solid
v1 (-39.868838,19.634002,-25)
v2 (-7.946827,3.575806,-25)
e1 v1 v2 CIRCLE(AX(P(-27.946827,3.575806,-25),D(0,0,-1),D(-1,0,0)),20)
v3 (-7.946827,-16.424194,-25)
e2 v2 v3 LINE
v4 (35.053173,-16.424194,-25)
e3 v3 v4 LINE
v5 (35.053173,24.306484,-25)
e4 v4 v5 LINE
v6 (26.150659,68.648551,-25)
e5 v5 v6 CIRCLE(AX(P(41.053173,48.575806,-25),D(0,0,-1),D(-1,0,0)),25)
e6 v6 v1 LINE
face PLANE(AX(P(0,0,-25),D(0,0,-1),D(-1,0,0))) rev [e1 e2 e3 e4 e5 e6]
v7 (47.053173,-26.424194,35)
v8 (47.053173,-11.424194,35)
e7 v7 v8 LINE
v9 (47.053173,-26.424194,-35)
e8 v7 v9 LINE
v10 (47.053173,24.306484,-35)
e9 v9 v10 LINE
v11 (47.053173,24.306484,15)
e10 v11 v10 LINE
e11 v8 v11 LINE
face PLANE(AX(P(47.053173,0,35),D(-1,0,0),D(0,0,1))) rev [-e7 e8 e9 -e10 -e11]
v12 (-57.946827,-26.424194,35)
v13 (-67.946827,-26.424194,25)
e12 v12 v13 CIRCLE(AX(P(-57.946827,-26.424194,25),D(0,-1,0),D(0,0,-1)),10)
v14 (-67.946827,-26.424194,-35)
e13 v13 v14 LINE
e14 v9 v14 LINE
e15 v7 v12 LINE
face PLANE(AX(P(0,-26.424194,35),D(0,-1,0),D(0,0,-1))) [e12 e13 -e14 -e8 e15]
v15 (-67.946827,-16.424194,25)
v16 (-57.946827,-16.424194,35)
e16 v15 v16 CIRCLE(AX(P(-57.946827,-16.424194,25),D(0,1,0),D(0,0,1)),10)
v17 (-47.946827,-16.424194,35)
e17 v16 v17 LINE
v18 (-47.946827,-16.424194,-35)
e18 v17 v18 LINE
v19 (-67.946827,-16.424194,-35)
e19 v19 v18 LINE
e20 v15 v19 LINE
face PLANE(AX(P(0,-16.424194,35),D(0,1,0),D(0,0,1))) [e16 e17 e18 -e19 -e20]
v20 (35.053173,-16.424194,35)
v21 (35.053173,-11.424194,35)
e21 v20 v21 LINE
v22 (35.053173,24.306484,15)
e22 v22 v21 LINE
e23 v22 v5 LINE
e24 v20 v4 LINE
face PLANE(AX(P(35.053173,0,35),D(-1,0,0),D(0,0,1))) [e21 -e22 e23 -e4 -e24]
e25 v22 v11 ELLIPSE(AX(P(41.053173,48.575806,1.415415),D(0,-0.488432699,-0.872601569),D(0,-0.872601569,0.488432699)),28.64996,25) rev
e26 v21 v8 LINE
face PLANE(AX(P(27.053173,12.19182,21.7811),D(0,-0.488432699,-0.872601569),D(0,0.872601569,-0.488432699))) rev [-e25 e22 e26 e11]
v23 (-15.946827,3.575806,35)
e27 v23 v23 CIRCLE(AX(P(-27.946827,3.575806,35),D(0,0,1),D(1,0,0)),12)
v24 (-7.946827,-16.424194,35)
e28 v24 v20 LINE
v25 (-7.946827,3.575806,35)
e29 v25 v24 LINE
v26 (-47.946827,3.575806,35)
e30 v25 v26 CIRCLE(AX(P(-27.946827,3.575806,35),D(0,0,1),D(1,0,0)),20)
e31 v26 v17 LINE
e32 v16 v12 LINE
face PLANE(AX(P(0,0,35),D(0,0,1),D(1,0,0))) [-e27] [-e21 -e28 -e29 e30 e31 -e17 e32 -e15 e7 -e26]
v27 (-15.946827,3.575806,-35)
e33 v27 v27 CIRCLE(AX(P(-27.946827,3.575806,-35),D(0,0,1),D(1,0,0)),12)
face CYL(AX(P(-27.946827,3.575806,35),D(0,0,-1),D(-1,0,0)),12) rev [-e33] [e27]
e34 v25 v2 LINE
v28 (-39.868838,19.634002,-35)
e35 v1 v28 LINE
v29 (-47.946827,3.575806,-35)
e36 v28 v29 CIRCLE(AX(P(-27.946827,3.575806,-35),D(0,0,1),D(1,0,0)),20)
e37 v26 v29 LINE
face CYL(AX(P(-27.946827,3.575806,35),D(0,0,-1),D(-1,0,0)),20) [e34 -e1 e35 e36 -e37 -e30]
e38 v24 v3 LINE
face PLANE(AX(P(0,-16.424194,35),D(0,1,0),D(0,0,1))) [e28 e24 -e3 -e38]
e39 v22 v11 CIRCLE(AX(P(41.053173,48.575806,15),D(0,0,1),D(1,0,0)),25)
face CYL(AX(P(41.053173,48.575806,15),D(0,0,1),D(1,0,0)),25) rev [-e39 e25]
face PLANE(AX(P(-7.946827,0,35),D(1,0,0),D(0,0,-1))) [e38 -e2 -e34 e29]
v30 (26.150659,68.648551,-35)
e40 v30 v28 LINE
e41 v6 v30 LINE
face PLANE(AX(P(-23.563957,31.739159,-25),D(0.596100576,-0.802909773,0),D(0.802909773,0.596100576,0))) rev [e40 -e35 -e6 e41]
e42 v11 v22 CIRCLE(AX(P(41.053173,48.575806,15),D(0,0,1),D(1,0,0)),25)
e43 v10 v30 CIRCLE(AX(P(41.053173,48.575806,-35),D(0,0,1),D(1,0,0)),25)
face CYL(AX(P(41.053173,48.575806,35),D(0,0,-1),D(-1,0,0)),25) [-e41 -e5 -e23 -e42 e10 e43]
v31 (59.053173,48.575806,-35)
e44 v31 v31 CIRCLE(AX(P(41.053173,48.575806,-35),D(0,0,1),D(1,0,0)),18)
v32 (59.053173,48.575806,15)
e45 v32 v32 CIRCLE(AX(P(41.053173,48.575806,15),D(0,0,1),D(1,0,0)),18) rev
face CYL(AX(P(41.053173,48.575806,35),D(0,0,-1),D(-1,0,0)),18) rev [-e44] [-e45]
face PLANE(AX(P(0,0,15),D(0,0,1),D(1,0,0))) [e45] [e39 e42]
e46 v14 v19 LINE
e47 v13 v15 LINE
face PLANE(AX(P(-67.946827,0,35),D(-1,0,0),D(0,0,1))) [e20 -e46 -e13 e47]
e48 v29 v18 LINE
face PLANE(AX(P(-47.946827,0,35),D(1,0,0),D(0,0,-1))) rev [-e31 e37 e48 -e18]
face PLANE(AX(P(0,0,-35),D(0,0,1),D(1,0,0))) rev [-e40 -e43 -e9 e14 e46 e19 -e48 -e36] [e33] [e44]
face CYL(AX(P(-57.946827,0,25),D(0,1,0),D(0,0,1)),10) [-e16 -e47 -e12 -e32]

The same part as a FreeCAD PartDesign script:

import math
import FreeCAD as App
import Part
import Sketcher

V = App.Vector
Q = App.Units.Quantity


def edges_at(feature, points):
    """Names of the edges that pass closest to the given points."""
    edges = feature.Shape.Edges
    near = lambda p: min(range(len(edges)), key=lambda i: edges[i].distToShape(Part.Vertex(*p))[0])
    return sorted({f"Edge{near(p) + 1}" for p in points})

doc = App.newDocument("Part")
params = doc.addObject("Spreadsheet::Sheet", "Params")
for row, (alias, value) in enumerate([
    ("sketch1_diameter", "24 mm"),
    ("sketch1_diameter2", "36 mm"),
    ("sketch1_radius", "25 mm"),
    ("sketch1_radius2", "20 mm"),
    ("sketch1_width", "43 mm"),
    ("pad1_length", "70 mm"),
    ("sketch2_radius", "25 mm"),
    ("sketch2_radius2", "20 mm"),
    ("sketch2_width", "43 mm"),
    ("sketch2_height", "20 mm"),
    ("pad2_length", "10 mm"),
    ("fillet_radius", "10 mm"),
    ("sketch3_diameter", "36 mm"),
    ("sketch3_radius", "25 mm"),
    ("pocket1_length", "20 mm"),
    ("sketch4_height", "20 mm"),
    ("pocket2_length", "20 mm"),
], start=1):
    params.set(f"A{row}", alias)
    params.set(f"B{row}", "=" + value)
    params.setAlias(f"B{row}", alias)

body = doc.addObject("PartDesign::Body", "Body")

sketch1 = doc.addObject("Sketcher::SketchObject", "Sketch")
body.addObject(sketch1)
sketch1.AttachmentSupport = (doc.XY_Plane, [""])
sketch1.MapMode = "FlatFace"
sketch1.addGeometry(Part.LineSegment(V(47.053173, -26.424194, 0), V(47.053173, 24.306484, 0)), False)
sketch1.addGeometry(Part.ArcOfCircle(Part.Circle(V(41.053173, 48.575806, 0), V(0, 0, 1), 25), math.radians(-76.11346), math.radians(256.11346)), False)
sketch1.addGeometry(Part.LineSegment(V(35.053173, 24.306484, 0), V(35.053173, -16.424194, 0)), False)
sketch1.addGeometry(Part.LineSegment(V(35.053173, -16.424194, 0), V(-7.946827, -16.424194, 0)), False)
sketch1.addGeometry(Part.LineSegment(V(-7.946827, -16.424194, 0), V(-7.946827, 3.575806, 0)), False)
sketch1.addGeometry(Part.ArcOfCircle(Part.Circle(V(-27.946827, 3.575806, 0), V(0, 0, 1), 20), math.radians(0), math.radians(180)), False)
sketch1.addGeometry(Part.LineSegment(V(-47.946827, 3.575806, 0), V(-47.946827, -16.424194, 0)), False)
sketch1.addGeometry(Part.LineSegment(V(-47.946827, -16.424194, 0), V(-67.946827, -16.424194, 0)), False)
sketch1.addGeometry(Part.LineSegment(V(-67.946827, -16.424194, 0), V(-67.946827, -26.424194, 0)), False)
sketch1.addGeometry(Part.LineSegment(V(-67.946827, -26.424194, 0), V(47.053173, -26.424194, 0)), False)
sketch1.addGeometry(Part.Circle(V(-27.946827, 3.575806, 0), V(0, 0, 1), 12), False)
sketch1.addGeometry(Part.Circle(V(41.053173, 48.575806, 0), V(0, 0, 1), 18), False)
sketch1.addConstraint(Sketcher.Constraint("Coincident", 0, 2, 1, 1))
sketch1.addConstraint(Sketcher.Constraint("Coincident", 1, 2, 2, 1))
sketch1.addConstraint(Sketcher.Constraint("Coincident", 2, 2, 3, 1))
sketch1.addConstraint(Sketcher.Constraint("Coincident", 3, 2, 4, 1))
sketch1.addConstraint(Sketcher.Constraint("Tangent", 4, 2, 5, 1))
sketch1.addConstraint(Sketcher.Constraint("Tangent", 5, 2, 6, 1))
sketch1.addConstraint(Sketcher.Constraint("Coincident", 6, 2, 7, 1))
sketch1.addConstraint(Sketcher.Constraint("Coincident", 7, 2, 8, 1))
sketch1.addConstraint(Sketcher.Constraint("Coincident", 8, 2, 9, 1))
sketch1.addConstraint(Sketcher.Constraint("Coincident", 9, 2, 0, 1))
sketch1.addConstraint(Sketcher.Constraint("Vertical", 0))
sketch1.addConstraint(Sketcher.Constraint("Vertical", 2))
sketch1.addConstraint(Sketcher.Constraint("Horizontal", 3))
sketch1.addConstraint(Sketcher.Constraint("Vertical", 4))
sketch1.addConstraint(Sketcher.Constraint("Vertical", 6))
sketch1.addConstraint(Sketcher.Constraint("Horizontal", 7))
sketch1.addConstraint(Sketcher.Constraint("Vertical", 8))
sketch1.addConstraint(Sketcher.Constraint("Horizontal", 9))
sketch1.addConstraint(Sketcher.Constraint("Coincident", 10, 3, 5, 3))
sketch1.addConstraint(Sketcher.Constraint("Coincident", 11, 3, 1, 3))
sketch1.addConstraint(Sketcher.Constraint("Horizontal", 0, 2, 1, 2))
sketch1.addConstraint(Sketcher.Constraint("Horizontal", 3, 2, 6, 2))
sketch1.addConstraint(Sketcher.Constraint("Equal", 7, 4))
sketch1.addConstraint(Sketcher.Constraint("Diameter", 10, Q("24 mm")))
sketch1.addConstraint(Sketcher.Constraint("Diameter", 11, Q("36 mm")))
sketch1.addConstraint(Sketcher.Constraint("Radius", 1, Q("25 mm")))
sketch1.addConstraint(Sketcher.Constraint("Radius", 5, Q("20 mm")))
sketch1.addConstraint(Sketcher.Constraint("DistanceX", 3, 2, 3, 1, Q("43 mm")))
sketch1.addConstraint(Sketcher.Constraint("DistanceX", 7, 2, 7, 1, Q("20 mm")))
sketch1.addConstraint(Sketcher.Constraint("DistanceX", 9, 1, 9, 2, Q("115 mm")))
sketch1.addConstraint(Sketcher.Constraint("DistanceY", 8, 2, 8, 1, Q("10 mm")))
sketch1.addConstraint(Sketcher.Constraint("DistanceY", 5, 3, 1, 3, Q("45 mm")))
sketch1.addConstraint(Sketcher.Constraint("DistanceX", -1, 1, 1, 3, Q("41.053173 mm")))
sketch1.addConstraint(Sketcher.Constraint("DistanceY", -1, 1, 1, 3, Q("48.575806 mm")))
sketch1.setExpression("Constraints[23]", "Params.sketch1_diameter")
sketch1.setExpression("Constraints[24]", "Params.sketch1_diameter2")
sketch1.setExpression("Constraints[25]", "Params.sketch1_radius")
sketch1.setExpression("Constraints[26]", "Params.sketch1_radius2")
sketch1.setExpression("Constraints[27]", "Params.sketch1_width")
pad1 = doc.addObject("PartDesign::Pad", "Pad")
body.addObject(pad1)
pad1.Profile = sketch1
pad1.setExpression("Length", "Params.pad1_length")
pad1.Midplane = True

sketch2 = doc.addObject("Sketcher::SketchObject", "Sketch001")
body.addObject(sketch2)
sketch2.AttachmentSupport = (doc.XY_Plane, [""])
sketch2.MapMode = "FlatFace"
sketch2.AttachmentOffset = App.Placement(V(0, 0, -25), App.Rotation())
sketch2.addGeometry(Part.ArcOfCircle(Part.Circle(V(41.053173, 48.575806, 0), V(0, 0, 1), 25), math.radians(126.59113), math.radians(256.11346)), False)
sketch2.addGeometry(Part.LineSegment(V(26.150659, 68.648551, 0), V(-39.868838, 19.634002, 0)), False)
sketch2.addGeometry(Part.ArcOfCircle(Part.Circle(V(-27.946827, 3.575806, 0), V(0, 0, 1), 20), math.radians(0), math.radians(126.59113)), False)
sketch2.addGeometry(Part.LineSegment(V(-7.946827, 3.575806, 0), V(-7.946827, -16.424194, 0)), False)
sketch2.addGeometry(Part.LineSegment(V(-7.946827, -16.424194, 0), V(35.053173, -16.424194, 0)), False)
sketch2.addGeometry(Part.LineSegment(V(35.053173, -16.424194, 0), V(35.053173, 24.306484, 0)), False)
sketch2.addConstraint(Sketcher.Constraint("Tangent", 0, 1, 1, 1))
sketch2.addConstraint(Sketcher.Constraint("Tangent", 1, 2, 2, 2))
sketch2.addConstraint(Sketcher.Constraint("Tangent", 2, 1, 3, 1))
sketch2.addConstraint(Sketcher.Constraint("Coincident", 3, 2, 4, 1))
sketch2.addConstraint(Sketcher.Constraint("Coincident", 4, 2, 5, 1))
sketch2.addConstraint(Sketcher.Constraint("Coincident", 5, 2, 0, 2))
sketch2.addConstraint(Sketcher.Constraint("Vertical", 3))
sketch2.addConstraint(Sketcher.Constraint("Horizontal", 4))
sketch2.addConstraint(Sketcher.Constraint("Vertical", 5))
sketch2.addConstraint(Sketcher.Constraint("Radius", 0, Q("25 mm")))
sketch2.addConstraint(Sketcher.Constraint("Radius", 2, Q("20 mm")))
sketch2.addConstraint(Sketcher.Constraint("DistanceX", 4, 1, 4, 2, Q("43 mm")))
sketch2.addConstraint(Sketcher.Constraint("DistanceY", 3, 2, 3, 1, Q("20 mm")))
sketch2.addConstraint(Sketcher.Constraint("DistanceX", 2, 3, 0, 3, Q("69 mm")))
sketch2.addConstraint(Sketcher.Constraint("DistanceY", 2, 3, 0, 3, Q("45 mm")))
sketch2.addConstraint(Sketcher.Constraint("DistanceY", -1, 1, 1, 2, Q("19.634002 mm")))
sketch2.addConstraint(Sketcher.Constraint("DistanceX", -1, 1, 0, 1, Q("26.150659 mm")))
sketch2.setExpression("Constraints[9]", "Params.sketch2_radius")
sketch2.setExpression("Constraints[10]", "Params.sketch2_radius2")
sketch2.setExpression("Constraints[11]", "Params.sketch2_width")
sketch2.setExpression("Constraints[12]", "Params.sketch2_height")
pad2 = doc.addObject("PartDesign::Pad", "Pad001")
body.addObject(pad2)
pad2.Profile = sketch2
pad2.setExpression("Length", "Params.pad2_length")
pad2.Reversed = True
doc.recompute()

fillet = doc.addObject("PartDesign::Fillet", "Fillet")
body.addObject(fillet)
fillet.Base = (pad2, edges_at(pad2, [(-67.947, -21.424, 35)]))
fillet.setExpression("Radius", "Params.fillet_radius")

sketch3 = doc.addObject("Sketcher::SketchObject", "Sketch002")
body.addObject(sketch3)
sketch3.AttachmentSupport = (doc.XY_Plane, [""])
sketch3.MapMode = "FlatFace"
sketch3.AttachmentOffset = App.Placement(V(0, 0, 35), App.Rotation())
sketch3.addGeometry(Part.ArcOfCircle(Part.Circle(V(41.053173, 48.575806, 0), V(0, 0, 1), 25), math.radians(-103.88654), math.radians(-76.11346)), False)
sketch3.addGeometry(Part.ArcOfCircle(Part.Circle(V(41.053173, 48.575806, 0), V(0, 0, 1), 25), math.radians(-76.11346), math.radians(0)), False)
sketch3.addGeometry(Part.ArcOfCircle(Part.Circle(V(41.053173, 48.575806, 0), V(0, 0, 1), 25), math.radians(0), math.radians(256.11346)), False)
sketch3.addGeometry(Part.Circle(V(41.053173, 48.575806, 0), V(0, 0, 1), 18), False)
sketch3.addConstraint(Sketcher.Constraint("Tangent", 0, 2, 1, 1))
sketch3.addConstraint(Sketcher.Constraint("Tangent", 1, 2, 2, 1))
sketch3.addConstraint(Sketcher.Constraint("Tangent", 2, 2, 0, 1))
sketch3.addConstraint(Sketcher.Constraint("Coincident", 3, 3, 0, 3))
sketch3.addConstraint(Sketcher.Constraint("Horizontal", 3, 3, 1, 2))
sketch3.addConstraint(Sketcher.Constraint("Horizontal", 0, 2, 2, 2))
sketch3.addConstraint(Sketcher.Constraint("Diameter", 3, Q("36 mm")))
sketch3.addConstraint(Sketcher.Constraint("Radius", 0, Q("25 mm")))
sketch3.addConstraint(Sketcher.Constraint("DistanceX", 1, 3, 0, 2, Q("6 mm")))
sketch3.addConstraint(Sketcher.Constraint("DistanceX", -1, 1, 0, 3, Q("41.053173 mm")))
sketch3.addConstraint(Sketcher.Constraint("DistanceY", -1, 1, 0, 3, Q("48.575806 mm")))
sketch3.setExpression("Constraints[6]", "Params.sketch3_diameter")
sketch3.setExpression("Constraints[7]", "Params.sketch3_radius")
pocket1 = doc.addObject("PartDesign::Pocket", "Pocket")
body.addObject(pocket1)
pocket1.Profile = sketch3
pocket1.setExpression("Length", "Params.pocket1_length")

sketch4 = doc.addObject("Sketcher::SketchObject", "Sketch003")
body.addObject(sketch4)
sketch4.AttachmentSupport = (doc.YZ_Plane, [""])
sketch4.MapMode = "FlatFace"
sketch4.AttachmentOffset = App.Placement(V(0, 0, 47.053173), App.Rotation())
sketch4.addGeometry(Part.LineSegment(V(24.306484, 35, 0), V(-11.424194, 35, 0)), False)
sketch4.addGeometry(Part.LineSegment(V(-11.424194, 35, 0), V(24.306484, 15, 0)), False)
sketch4.addGeometry(Part.LineSegment(V(24.306484, 15, 0), V(24.306484, 35, 0)), False)
sketch4.addConstraint(Sketcher.Constraint("Coincident", 0, 2, 1, 1))
sketch4.addConstraint(Sketcher.Constraint("Coincident", 1, 2, 2, 1))
sketch4.addConstraint(Sketcher.Constraint("Coincident", 2, 2, 0, 1))
sketch4.addConstraint(Sketcher.Constraint("Horizontal", 0))
sketch4.addConstraint(Sketcher.Constraint("Vertical", 2))
sketch4.addConstraint(Sketcher.Constraint("DistanceY", 2, 1, 2, 2, Q("20 mm")))
sketch4.addConstraint(Sketcher.Constraint("DistanceY", -1, 1, 0, 2, Q("35 mm")))
sketch4.addConstraint(Sketcher.Constraint("Distance", 1, Q("40.947299 mm")))
sketch4.addConstraint(Sketcher.Constraint("DistanceX", 0, 2, -1, 1, Q("11.424194 mm")))
sketch4.setExpression("Constraints[5]", "Params.sketch4_height")
pocket2 = doc.addObject("PartDesign::Pocket", "Pocket001")
body.addObject(pocket2)
pocket2.Profile = sketch4
pocket2.setExpression("Length", "Params.pocket2_length")

doc.recompute()
